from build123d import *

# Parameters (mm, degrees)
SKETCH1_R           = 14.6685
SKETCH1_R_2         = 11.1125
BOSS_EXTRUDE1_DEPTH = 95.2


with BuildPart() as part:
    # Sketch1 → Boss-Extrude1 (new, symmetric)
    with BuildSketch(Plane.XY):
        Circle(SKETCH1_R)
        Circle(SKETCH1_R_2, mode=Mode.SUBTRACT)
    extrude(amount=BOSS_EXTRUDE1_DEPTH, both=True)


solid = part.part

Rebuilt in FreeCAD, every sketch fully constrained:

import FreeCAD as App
import Part
import Sketcher
from FreeCAD import Vector
Q = App.Units.Quantity

doc = App.newDocument("Part")
body = doc.addObject("PartDesign::Body", "Body")

# Sketch on XY plane
sketch1 = body.newObject("Sketcher::SketchObject", "Sketch")
sketch1.AttachmentSupport = (doc.getObject("XY_Plane"), [""])
sketch1.MapMode = "FlatFace"
sketch1.addGeometry(Part.Circle(Vector(0, 0, 0), Vector(0, 0, 1), 15), False)
sketch1.addGeometry(Part.Circle(Vector(0, 0, 0), Vector(0, 0, 1), 11), False)
sketch1.addConstraint(Sketcher.Constraint("Coincident", 0, 3, -1, 1))
sketch1.addConstraint(Sketcher.Constraint("Coincident", 1, 3, -1, 1))
sketch1.addConstraint(Sketcher.Constraint("Diameter", 0, Q("1.155 in")))
sketch1.addConstraint(Sketcher.Constraint("Diameter", 1, Q("0.875 in")))
pad1 = body.newObject("PartDesign::Pad", "Pad")
pad1.Profile = sketch1
pad1.Length = 190.4
pad1.Midplane = True

doc.recompute()
